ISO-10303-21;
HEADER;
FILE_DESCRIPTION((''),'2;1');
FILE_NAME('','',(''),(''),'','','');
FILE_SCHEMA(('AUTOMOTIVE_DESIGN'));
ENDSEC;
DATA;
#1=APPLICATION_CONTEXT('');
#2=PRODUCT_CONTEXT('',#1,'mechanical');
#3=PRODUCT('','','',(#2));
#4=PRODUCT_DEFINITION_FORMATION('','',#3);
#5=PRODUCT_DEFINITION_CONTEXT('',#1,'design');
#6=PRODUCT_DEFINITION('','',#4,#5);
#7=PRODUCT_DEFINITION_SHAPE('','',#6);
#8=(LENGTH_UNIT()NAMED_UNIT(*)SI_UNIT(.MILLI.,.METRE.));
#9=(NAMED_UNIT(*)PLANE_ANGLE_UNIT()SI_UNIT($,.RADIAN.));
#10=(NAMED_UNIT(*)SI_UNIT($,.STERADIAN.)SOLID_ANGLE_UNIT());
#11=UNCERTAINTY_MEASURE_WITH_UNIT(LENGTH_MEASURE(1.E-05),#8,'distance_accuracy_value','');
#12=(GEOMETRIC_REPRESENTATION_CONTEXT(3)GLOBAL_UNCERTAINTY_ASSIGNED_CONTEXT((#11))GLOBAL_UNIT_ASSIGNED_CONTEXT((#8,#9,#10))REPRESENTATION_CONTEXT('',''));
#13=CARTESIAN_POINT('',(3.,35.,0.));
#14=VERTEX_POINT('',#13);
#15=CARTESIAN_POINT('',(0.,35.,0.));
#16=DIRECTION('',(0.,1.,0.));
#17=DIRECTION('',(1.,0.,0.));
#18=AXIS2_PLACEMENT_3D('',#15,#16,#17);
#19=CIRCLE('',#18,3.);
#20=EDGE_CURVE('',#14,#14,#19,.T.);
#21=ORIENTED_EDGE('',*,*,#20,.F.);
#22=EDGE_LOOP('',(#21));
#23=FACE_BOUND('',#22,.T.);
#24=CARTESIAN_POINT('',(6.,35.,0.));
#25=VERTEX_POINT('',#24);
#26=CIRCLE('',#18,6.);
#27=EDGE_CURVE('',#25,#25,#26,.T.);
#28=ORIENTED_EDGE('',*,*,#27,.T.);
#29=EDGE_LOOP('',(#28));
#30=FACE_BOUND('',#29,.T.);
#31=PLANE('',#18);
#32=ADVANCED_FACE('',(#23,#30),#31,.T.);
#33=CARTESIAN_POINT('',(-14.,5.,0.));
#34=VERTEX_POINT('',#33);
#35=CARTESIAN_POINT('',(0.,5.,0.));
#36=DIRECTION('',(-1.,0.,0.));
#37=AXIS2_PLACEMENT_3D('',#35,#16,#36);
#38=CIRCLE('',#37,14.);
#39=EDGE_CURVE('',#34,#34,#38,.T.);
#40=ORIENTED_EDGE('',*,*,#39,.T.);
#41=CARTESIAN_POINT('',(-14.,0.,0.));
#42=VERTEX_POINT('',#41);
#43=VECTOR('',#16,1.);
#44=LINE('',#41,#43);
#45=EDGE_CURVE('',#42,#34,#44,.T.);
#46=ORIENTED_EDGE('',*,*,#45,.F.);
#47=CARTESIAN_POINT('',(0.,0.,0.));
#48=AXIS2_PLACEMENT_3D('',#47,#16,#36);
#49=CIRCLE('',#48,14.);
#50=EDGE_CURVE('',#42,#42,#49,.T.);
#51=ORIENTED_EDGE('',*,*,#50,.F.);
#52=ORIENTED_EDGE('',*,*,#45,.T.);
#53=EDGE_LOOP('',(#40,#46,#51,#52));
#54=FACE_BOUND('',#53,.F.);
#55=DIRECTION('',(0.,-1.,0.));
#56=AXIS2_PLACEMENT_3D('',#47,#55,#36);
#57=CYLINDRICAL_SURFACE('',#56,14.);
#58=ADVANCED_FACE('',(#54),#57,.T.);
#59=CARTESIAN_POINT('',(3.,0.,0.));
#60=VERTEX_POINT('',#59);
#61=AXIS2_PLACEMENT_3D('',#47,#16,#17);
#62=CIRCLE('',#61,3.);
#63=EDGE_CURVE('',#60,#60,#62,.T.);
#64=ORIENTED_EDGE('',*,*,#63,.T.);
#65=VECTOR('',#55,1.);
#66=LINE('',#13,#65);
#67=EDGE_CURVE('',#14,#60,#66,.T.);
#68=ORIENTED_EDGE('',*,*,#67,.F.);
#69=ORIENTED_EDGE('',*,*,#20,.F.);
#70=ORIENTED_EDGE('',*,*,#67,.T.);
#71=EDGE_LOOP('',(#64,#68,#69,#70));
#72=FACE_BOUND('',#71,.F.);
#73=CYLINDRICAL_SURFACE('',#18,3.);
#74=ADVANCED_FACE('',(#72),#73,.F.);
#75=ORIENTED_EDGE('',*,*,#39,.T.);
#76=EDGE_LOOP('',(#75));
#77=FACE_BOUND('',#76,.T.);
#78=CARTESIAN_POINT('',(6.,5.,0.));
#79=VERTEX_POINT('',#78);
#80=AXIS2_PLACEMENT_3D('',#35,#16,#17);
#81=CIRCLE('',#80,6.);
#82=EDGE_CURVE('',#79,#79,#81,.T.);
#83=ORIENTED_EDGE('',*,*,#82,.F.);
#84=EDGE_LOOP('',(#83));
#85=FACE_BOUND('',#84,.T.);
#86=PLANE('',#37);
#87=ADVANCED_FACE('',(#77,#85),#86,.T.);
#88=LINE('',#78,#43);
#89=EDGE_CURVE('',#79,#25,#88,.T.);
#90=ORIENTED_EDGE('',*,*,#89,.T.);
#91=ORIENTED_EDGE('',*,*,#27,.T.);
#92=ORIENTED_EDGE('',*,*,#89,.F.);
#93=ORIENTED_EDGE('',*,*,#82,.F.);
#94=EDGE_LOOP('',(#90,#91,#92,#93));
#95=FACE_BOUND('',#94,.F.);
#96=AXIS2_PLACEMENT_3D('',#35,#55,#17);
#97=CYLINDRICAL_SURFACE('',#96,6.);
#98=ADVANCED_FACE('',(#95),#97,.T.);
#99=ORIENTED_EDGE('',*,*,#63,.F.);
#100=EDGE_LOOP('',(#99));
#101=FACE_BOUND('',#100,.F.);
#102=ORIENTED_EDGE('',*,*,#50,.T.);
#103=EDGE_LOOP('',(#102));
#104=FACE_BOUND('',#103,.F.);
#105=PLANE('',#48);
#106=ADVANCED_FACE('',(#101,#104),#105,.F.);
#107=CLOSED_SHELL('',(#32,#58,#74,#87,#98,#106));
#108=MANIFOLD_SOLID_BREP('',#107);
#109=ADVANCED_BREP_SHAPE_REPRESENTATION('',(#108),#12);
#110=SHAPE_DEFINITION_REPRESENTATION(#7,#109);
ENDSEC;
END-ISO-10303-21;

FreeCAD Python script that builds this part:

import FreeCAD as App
import Part
import Sketcher

V = App.Vector
Q = App.Units.Quantity

doc = App.newDocument("Part")
params = doc.addObject("Spreadsheet::Sheet", "Params")
for row, (alias, value) in enumerate([
    ("sketch1_diameter", "28 mm"),
    ("pad1_length", "5 mm"),
    ("sketch2_diameter", "12 mm"),
    ("pad2_length", "30 mm"),
    ("sketch3_diameter", "6 mm"),
    ("pocket1_length", "35 mm"),
], start=1):
    params.set(f"A{row}", alias)
    params.set(f"B{row}", "=" + value)
    params.setAlias(f"B{row}", alias)

body = doc.addObject("PartDesign::Body", "Body")

# Sketch on XZ plane
sketch1 = body.newObject("Sketcher::SketchObject", "Sketch")
sketch1.AttachmentSupport = (doc.getObject("XZ_Plane"), [""])
sketch1.MapMode = "FlatFace"
sketch1.addGeometry(Part.Circle(V(0, 0, 0), V(0, 0, 1), 14), False)
sketch1.addConstraint([
    Sketcher.Constraint("Coincident", 0, 3, -1, 1),
    Sketcher.Constraint("Diameter", 0, Q("28 mm")),
])
sketch1.setExpression("Constraints[1]", "Params.sketch1_diameter")
pad1 = body.newObject("PartDesign::Pad", "Pad")
pad1.Profile = sketch1
pad1.setExpression("Length", "Params.pad1_length")
pad1.Reversed = True

# Sketch on XZ plane
sketch2 = body.newObject("Sketcher::SketchObject", "Sketch001")
sketch2.AttachmentSupport = (doc.getObject("XZ_Plane"), [""])
sketch2.MapMode = "FlatFace"
sketch2.AttachmentOffset = App.Placement(V(0, 0, -5), App.Rotation())
sketch2.addGeometry(Part.Circle(V(0, 0, 0), V(0, 0, 1), 6), False)
sketch2.addConstraint([
    Sketcher.Constraint("Coincident", 0, 3, -1, 1),
    Sketcher.Constraint("Diameter", 0, Q("12 mm")),
])
sketch2.setExpression("Constraints[1]", "Params.sketch2_diameter")
pad2 = body.newObject("PartDesign::Pad", "Pad001")
pad2.Profile = sketch2
pad2.setExpression("Length", "Params.pad2_length")
pad2.Reversed = True

# Sketch on XZ plane
sketch3 = body.newObject("Sketcher::SketchObject", "Sketch002")
sketch3.AttachmentSupport = (doc.getObject("XZ_Plane"), [""])
sketch3.MapMode = "FlatFace"
sketch3.AttachmentOffset = App.Placement(V(0, 0, -35), App.Rotation())
sketch3.addGeometry(Part.Circle(V(0, 0, 0), V(0, 0, 1), 3), False)
sketch3.addConstraint([
    Sketcher.Constraint("Coincident", 0, 3, -1, 1),
    Sketcher.Constraint("Diameter", 0, Q("6 mm")),
])
sketch3.setExpression("Constraints[1]", "Params.sketch3_diameter")
pocket1 = body.newObject("PartDesign::Pocket", "Pocket")
pocket1.Profile = sketch3
pocket1.setExpression("Length", "Params.pocket1_length")
pocket1.Reversed = True

doc.recompute()
